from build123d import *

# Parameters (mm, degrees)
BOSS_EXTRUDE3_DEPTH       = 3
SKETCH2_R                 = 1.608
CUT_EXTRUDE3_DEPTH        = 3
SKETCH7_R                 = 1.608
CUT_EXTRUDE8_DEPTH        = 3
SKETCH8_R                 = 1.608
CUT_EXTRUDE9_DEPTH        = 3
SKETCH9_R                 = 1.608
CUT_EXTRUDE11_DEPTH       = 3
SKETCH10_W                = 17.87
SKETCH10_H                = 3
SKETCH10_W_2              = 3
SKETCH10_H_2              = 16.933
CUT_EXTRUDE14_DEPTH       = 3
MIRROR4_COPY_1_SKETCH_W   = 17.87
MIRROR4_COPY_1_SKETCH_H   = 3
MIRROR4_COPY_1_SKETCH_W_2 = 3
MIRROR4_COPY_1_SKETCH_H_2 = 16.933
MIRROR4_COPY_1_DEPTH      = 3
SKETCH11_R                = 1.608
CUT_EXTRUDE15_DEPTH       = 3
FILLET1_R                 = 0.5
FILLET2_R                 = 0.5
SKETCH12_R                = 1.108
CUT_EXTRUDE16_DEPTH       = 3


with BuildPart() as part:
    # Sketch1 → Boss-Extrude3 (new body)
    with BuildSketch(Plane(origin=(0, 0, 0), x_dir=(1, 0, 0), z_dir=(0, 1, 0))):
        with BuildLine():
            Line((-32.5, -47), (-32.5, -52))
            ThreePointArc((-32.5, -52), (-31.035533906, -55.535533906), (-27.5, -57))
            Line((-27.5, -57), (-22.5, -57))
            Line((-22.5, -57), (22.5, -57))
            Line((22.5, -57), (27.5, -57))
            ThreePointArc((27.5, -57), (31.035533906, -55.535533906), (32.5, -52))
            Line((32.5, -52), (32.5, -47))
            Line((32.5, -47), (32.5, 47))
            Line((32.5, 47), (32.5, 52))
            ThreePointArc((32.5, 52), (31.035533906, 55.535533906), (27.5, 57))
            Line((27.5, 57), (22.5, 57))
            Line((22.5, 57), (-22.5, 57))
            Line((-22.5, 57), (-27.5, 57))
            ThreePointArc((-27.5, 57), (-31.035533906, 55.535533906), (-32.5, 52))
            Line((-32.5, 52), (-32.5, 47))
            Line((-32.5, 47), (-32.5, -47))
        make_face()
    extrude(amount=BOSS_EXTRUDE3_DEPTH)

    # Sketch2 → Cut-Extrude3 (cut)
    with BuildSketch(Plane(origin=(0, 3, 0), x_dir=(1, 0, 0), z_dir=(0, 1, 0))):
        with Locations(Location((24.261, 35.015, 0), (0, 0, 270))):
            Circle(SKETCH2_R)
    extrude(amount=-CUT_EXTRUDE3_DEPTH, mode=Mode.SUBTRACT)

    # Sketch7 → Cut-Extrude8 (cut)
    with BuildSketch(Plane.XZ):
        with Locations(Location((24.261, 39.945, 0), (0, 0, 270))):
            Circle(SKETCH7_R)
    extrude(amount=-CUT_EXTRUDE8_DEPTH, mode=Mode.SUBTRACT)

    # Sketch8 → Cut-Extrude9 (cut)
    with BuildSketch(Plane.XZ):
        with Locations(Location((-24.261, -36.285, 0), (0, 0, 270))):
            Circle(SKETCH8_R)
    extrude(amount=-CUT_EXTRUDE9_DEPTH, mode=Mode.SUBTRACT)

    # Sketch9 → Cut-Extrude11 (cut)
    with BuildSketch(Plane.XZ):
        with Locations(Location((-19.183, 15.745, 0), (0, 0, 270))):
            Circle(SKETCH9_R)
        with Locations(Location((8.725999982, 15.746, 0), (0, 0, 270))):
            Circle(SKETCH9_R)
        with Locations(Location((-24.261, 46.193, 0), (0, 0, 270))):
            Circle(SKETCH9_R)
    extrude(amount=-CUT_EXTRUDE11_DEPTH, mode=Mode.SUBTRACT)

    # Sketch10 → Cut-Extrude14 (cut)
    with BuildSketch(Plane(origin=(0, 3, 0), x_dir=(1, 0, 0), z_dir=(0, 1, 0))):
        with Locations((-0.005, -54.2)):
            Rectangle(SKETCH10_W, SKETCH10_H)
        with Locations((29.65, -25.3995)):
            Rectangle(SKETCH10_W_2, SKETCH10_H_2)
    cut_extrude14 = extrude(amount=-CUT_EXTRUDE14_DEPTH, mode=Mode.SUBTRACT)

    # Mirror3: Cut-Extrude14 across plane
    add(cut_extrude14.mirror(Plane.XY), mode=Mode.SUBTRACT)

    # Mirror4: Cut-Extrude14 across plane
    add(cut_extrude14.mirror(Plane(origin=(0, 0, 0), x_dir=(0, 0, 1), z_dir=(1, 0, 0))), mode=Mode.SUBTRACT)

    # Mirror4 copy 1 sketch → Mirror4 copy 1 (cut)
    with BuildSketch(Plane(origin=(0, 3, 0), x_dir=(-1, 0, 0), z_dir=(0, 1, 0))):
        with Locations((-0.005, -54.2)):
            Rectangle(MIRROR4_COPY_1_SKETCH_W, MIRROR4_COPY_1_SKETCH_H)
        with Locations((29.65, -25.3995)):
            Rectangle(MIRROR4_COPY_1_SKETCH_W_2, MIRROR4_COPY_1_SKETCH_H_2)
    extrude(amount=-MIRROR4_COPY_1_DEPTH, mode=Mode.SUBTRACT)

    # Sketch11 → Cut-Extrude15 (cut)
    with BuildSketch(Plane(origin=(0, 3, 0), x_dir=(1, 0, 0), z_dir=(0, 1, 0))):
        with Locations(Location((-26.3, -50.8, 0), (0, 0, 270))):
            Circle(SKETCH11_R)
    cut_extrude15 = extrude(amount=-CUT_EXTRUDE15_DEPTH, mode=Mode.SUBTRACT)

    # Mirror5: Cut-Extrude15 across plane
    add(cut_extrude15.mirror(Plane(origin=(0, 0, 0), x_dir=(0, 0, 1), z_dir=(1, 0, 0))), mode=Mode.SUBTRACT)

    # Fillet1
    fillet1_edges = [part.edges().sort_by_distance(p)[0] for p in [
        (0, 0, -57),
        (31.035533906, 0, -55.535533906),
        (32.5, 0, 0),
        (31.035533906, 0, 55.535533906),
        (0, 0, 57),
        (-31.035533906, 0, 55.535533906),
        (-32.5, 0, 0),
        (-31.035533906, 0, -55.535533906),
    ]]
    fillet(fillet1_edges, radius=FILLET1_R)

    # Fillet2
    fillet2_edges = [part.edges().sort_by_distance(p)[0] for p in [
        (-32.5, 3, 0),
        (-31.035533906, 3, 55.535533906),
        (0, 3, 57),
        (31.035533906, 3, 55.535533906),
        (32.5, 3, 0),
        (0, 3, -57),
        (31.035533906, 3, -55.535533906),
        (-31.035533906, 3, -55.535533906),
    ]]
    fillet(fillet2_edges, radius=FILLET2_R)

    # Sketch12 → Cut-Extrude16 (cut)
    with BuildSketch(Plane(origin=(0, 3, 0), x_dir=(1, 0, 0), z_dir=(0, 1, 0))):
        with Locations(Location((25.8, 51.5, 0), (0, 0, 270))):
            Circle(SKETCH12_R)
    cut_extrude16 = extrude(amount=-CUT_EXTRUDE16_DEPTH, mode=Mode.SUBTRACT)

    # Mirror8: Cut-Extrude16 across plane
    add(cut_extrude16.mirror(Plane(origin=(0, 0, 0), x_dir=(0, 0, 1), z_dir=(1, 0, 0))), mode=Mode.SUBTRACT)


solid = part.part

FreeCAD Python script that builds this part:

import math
import FreeCAD as App
import Part
import Sketcher

V = App.Vector
Q = App.Units.Quantity


def edges_at(feature, points):
    """Names of the edges that pass closest to the given points."""
    edges = feature.Shape.Edges
    near = lambda p: min(range(len(edges)), key=lambda i: edges[i].distToShape(Part.Vertex(*p))[0])
    return sorted({f"Edge{near(p) + 1}" for p in points})

doc = App.newDocument("Part")
body = doc.addObject("PartDesign::Body", "Body")

# Sketch on XZ plane
sketch1 = doc.addObject("Sketcher::SketchObject", "Sketch")
body.addObject(sketch1)
sketch1.AttachmentSupport = (doc.XZ_Plane, [""])
sketch1.MapMode = "FlatFace"
sketch1.addGeometry(Part.ArcOfCircle(Part.Circle(V(-28, 52, 0), V(0, 0, 1), 5), math.radians(90), math.radians(180)), False)
sketch1.addGeometry(Part.LineSegment(V(-28, 57, 0), V(28, 57, 0)), False)
sketch1.addGeometry(Part.ArcOfCircle(Part.Circle(V(28, 52, 0), V(0, 0, 1), 5), math.radians(0), math.radians(90)), False)
sketch1.addGeometry(Part.LineSegment(V(32, 52, 0), V(32, -52, 0)), False)
sketch1.addGeometry(Part.ArcOfCircle(Part.Circle(V(28, -52, 0), V(0, 0, 1), 5), math.radians(-90), math.radians(0)), False)
sketch1.addGeometry(Part.LineSegment(V(28, -57, 0), V(-28, -57, 0)), False)
sketch1.addGeometry(Part.ArcOfCircle(Part.Circle(V(-28, -52, 0), V(0, 0, 1), 5), math.radians(180), math.radians(270)), False)
sketch1.addGeometry(Part.LineSegment(V(-32, -52, 0), V(-32, 52, 0)), False)
sketch1.addConstraint(Sketcher.Constraint("Tangent", 0, 1, 1, 1))
sketch1.addConstraint(Sketcher.Constraint("Tangent", 1, 2, 2, 2))
sketch1.addConstraint(Sketcher.Constraint("Tangent", 2, 1, 3, 1))
sketch1.addConstraint(Sketcher.Constraint("Tangent", 3, 2, 4, 2))
sketch1.addConstraint(Sketcher.Constraint("Tangent", 4, 1, 5, 1))
sketch1.addConstraint(Sketcher.Constraint("Tangent", 5, 2, 6, 2))
sketch1.addConstraint(Sketcher.Constraint("Tangent", 6, 1, 7, 1))
sketch1.addConstraint(Sketcher.Constraint("Tangent", 7, 2, 0, 2))
sketch1.addConstraint(Sketcher.Constraint("Horizontal", 1))
sketch1.addConstraint(Sketcher.Constraint("Vertical", 3))
sketch1.addConstraint(Sketcher.Constraint("Horizontal", 5))
sketch1.addConstraint(Sketcher.Constraint("Vertical", 7))
sketch1.addConstraint(Sketcher.Constraint("Equal", 0, 2))
sketch1.addConstraint(Sketcher.Constraint("Equal", 2, 4))
sketch1.addConstraint(Sketcher.Constraint("Equal", 4, 6))
sketch1.addConstraint(Sketcher.Constraint("Symmetric", 0, 3, 4, 3, -1, 1))
sketch1.addConstraint(Sketcher.Constraint("Radius", 0, Q("5 mm")))
sketch1.addConstraint(Sketcher.Constraint("DistanceX", 1, 1, 1, 2, Q("55 mm")))
sketch1.addConstraint(Sketcher.Constraint("DistanceY", 3, 2, 3, 1, Q("104 mm")))
pad1 = doc.addObject("PartDesign::Pad", "Pad")
body.addObject(pad1)
pad1.Profile = sketch1
pad1.Length = 3
pad1.Reversed = True

# Sketch on XZ plane
sketch2 = doc.addObject("Sketcher::SketchObject", "Sketch001")
body.addObject(sketch2)
sketch2.AttachmentSupport = (doc.XZ_Plane, [""])
sketch2.MapMode = "FlatFace"
sketch2.AttachmentOffset = App.Placement(V(0, 0, -3), App.Rotation())
sketch2.addGeometry(Part.Circle(V(24.3, -35, 0), V(0, 0, 1), 1.6), False)
sketch2.addConstraint(Sketcher.Constraint("Diameter", 0, Q("3.216 mm")))
sketch2.addConstraint(Sketcher.Constraint("DistanceX", -1, 1, 0, 3, Q("24.261 mm")))
sketch2.addConstraint(Sketcher.Constraint("DistanceY", 0, 3, -1, 1, Q("35.015 mm")))
pocket1 = doc.addObject("PartDesign::Pocket", "Pocket")
body.addObject(pocket1)
pocket1.Profile = sketch2
pocket1.Length = 3
pocket1.Reversed = True

# Sketch on XZ plane
sketch3 = doc.addObject("Sketcher::SketchObject", "Sketch002")
body.addObject(sketch3)
sketch3.AttachmentSupport = (doc.XZ_Plane, [""])
sketch3.MapMode = "FlatFace"
sketch3.addGeometry(Part.Circle(V(24.3, 39.9, 0), V(0, 0, 1), 1.6), False)
sketch3.addConstraint(Sketcher.Constraint("Diameter", 0, Q("3.216 mm")))
sketch3.addConstraint(Sketcher.Constraint("DistanceX", -1, 1, 0, 3, Q("24.261 mm")))
sketch3.addConstraint(Sketcher.Constraint("DistanceY", -1, 1, 0, 3, Q("39.945 mm")))
pocket2 = doc.addObject("PartDesign::Pocket", "Pocket001")
body.addObject(pocket2)
pocket2.Profile = sketch3
pocket2.Length = 3

# Sketch on XZ plane
sketch4 = doc.addObject("Sketcher::SketchObject", "Sketch003")
body.addObject(sketch4)
sketch4.AttachmentSupport = (doc.XZ_Plane, [""])
sketch4.MapMode = "FlatFace"
sketch4.addGeometry(Part.Circle(V(-24.3, -36.3, 0), V(0, 0, 1), 1.6), False)
sketch4.addConstraint(Sketcher.Constraint("Diameter", 0, Q("3.216 mm")))
sketch4.addConstraint(Sketcher.Constraint("DistanceX", 0, 3, -1, 1, Q("24.261 mm")))
sketch4.addConstraint(Sketcher.Constraint("DistanceY", 0, 3, -1, 1, Q("36.285 mm")))
pocket3 = doc.addObject("PartDesign::Pocket", "Pocket002")
body.addObject(pocket3)
pocket3.Profile = sketch4
pocket3.Length = 3

# Sketch on XZ plane
sketch5 = doc.addObject("Sketcher::SketchObject", "Sketch004")
body.addObject(sketch5)
sketch5.AttachmentSupport = (doc.XZ_Plane, [""])
sketch5.MapMode = "FlatFace"
sketch5.addGeometry(Part.Circle(V(-19.2, 15.7, 0), V(0, 0, 1), 1.6), False)
sketch5.addGeometry(Part.Circle(V(8.7, 15.7, 0), V(0, 0, 1), 1.6), False)
sketch5.addGeometry(Part.Circle(V(-24.3, 46.2, 0), V(0, 0, 1), 1.6), False)
sketch5.addConstraint(Sketcher.Constraint("Equal", 0, 1))
sketch5.addConstraint(Sketcher.Constraint("Equal", 1, 2))
sketch5.addConstraint(Sketcher.Constraint("Diameter", 0, Q("3.216 mm")))
sketch5.addConstraint(Sketcher.Constraint("DistanceX", 0, 3, -1, 1, Q("19.183 mm")))
sketch5.addConstraint(Sketcher.Constraint("DistanceY", -1, 1, 0, 3, Q("15.745 mm")))
sketch5.addConstraint(Sketcher.Constraint("DistanceX", -1, 1, 1, 3, Q("8.726 mm")))
sketch5.addConstraint(Sketcher.Constraint("DistanceY", -1, 1, 1, 3, Q("15.746 mm")))
sketch5.addConstraint(Sketcher.Constraint("DistanceX", 2, 3, -1, 1, Q("24.261 mm")))
sketch5.addConstraint(Sketcher.Constraint("DistanceY", -1, 1, 2, 3, Q("46.193 mm")))
pocket4 = doc.addObject("PartDesign::Pocket", "Pocket003")
body.addObject(pocket4)
pocket4.Profile = sketch5
pocket4.Length = 3

# Sketch on XZ plane
sketch6 = doc.addObject("Sketcher::SketchObject", "Sketch005")
body.addObject(sketch6)
sketch6.AttachmentSupport = (doc.XZ_Plane, [""])
sketch6.MapMode = "FlatFace"
sketch6.AttachmentOffset = App.Placement(V(0, 0, -3), App.Rotation())
sketch6.addGeometry(Part.LineSegment(V(-8.9, 52.7, 0), V(-8.9, 55.7, 0)), False)
sketch6.addGeometry(Part.LineSegment(V(-8.9, 55.7, 0), V(8.9, 55.7, 0)), False)
sketch6.addGeometry(Part.LineSegment(V(8.9, 55.7, 0), V(8.9, 52.7, 0)), False)
sketch6.addGeometry(Part.LineSegment(V(8.9, 52.7, 0), V(-8.9, 52.7, 0)), False)
sketch6.addGeometry(Part.LineSegment(V(28.1, 16.9, 0), V(28.1, 33.9, 0)), False)
sketch6.addGeometry(Part.LineSegment(V(28.1, 33.9, 0), V(31.1, 33.9, 0)), False)
sketch6.addGeometry(Part.LineSegment(V(31.1, 33.9, 0), V(31.1, 16.9, 0)), False)
sketch6.addGeometry(Part.LineSegment(V(31.1, 16.9, 0), V(28.1, 16.9, 0)), False)
sketch6.addConstraint(Sketcher.Constraint("Coincident", 0, 2, 1, 1))
sketch6.addConstraint(Sketcher.Constraint("Coincident", 1, 2, 2, 1))
sketch6.addConstraint(Sketcher.Constraint("Coincident", 2, 2, 3, 1))
sketch6.addConstraint(Sketcher.Constraint("Coincident", 3, 2, 0, 1))
sketch6.addConstraint(Sketcher.Constraint("Coincident", 4, 2, 5, 1))
sketch6.addConstraint(Sketcher.Constraint("Coincident", 5, 2, 6, 1))
sketch6.addConstraint(Sketcher.Constraint("Coincident", 6, 2, 7, 1))
sketch6.addConstraint(Sketcher.Constraint("Coincident", 7, 2, 4, 1))
sketch6.addConstraint(Sketcher.Constraint("Vertical", 0))
sketch6.addConstraint(Sketcher.Constraint("Horizontal", 1))
sketch6.addConstraint(Sketcher.Constraint("Vertical", 2))
sketch6.addConstraint(Sketcher.Constraint("Horizontal", 3))
sketch6.addConstraint(Sketcher.Constraint("Vertical", 4))
sketch6.addConstraint(Sketcher.Constraint("Horizontal", 5))
sketch6.addConstraint(Sketcher.Constraint("Vertical", 6))
sketch6.addConstraint(Sketcher.Constraint("Horizontal", 7))
sketch6.addConstraint(Sketcher.Constraint("Equal", 7, 0))
sketch6.addConstraint(Sketcher.Constraint("DistanceX", 5, 1, 5, 2, Q("3 mm")))
sketch6.addConstraint(Sketcher.Constraint("DistanceX", 1, 1, 1, 2, Q("17.87 mm")))
sketch6.addConstraint(Sketcher.Constraint("DistanceY", -1, 1, 0, 2, Q("55.7 mm")))
sketch6.addConstraint(Sketcher.Constraint("DistanceY", 4, 1, 4, 2, Q("16.933 mm")))
sketch6.addConstraint(Sketcher.Constraint("DistanceX", 0, 2, -1, 1, Q("8.94 mm")))
sketch6.addConstraint(Sketcher.Constraint("DistanceX", -1, 1, 4, 2, Q("28.15 mm")))
sketch6.addConstraint(Sketcher.Constraint("DistanceY", -1, 1, 4, 2, Q("33.866 mm")))
pocket5 = doc.addObject("PartDesign::Pocket", "Pocket004")
body.addObject(pocket5)
pocket5.Profile = sketch6
pocket5.Length = 3
pocket5.Reversed = True
doc.recompute()

mirrored = doc.addObject("PartDesign::Mirrored", "Mirrored")
body.addObject(mirrored)
mirrored.Originals = [pocket5]
mirrored.MirrorPlane = (doc.XY_Plane, [""])
body.Tip = mirrored
doc.recompute()

mirrored2 = doc.addObject("PartDesign::Mirrored", "Mirrored001")
body.addObject(mirrored2)
mirrored2.Originals = [pocket5]
mirrored2.MirrorPlane = (doc.YZ_Plane, [""])
body.Tip = mirrored2

# Sketch on XZ plane
sketch7 = doc.addObject("Sketcher::SketchObject", "Sketch006")
body.addObject(sketch7)
sketch7.AttachmentSupport = (doc.XZ_Plane, [""])
sketch7.MapMode = "FlatFace"
sketch7.AttachmentOffset = App.Placement(V(0, 0, -3), App.Rotation())
sketch7.addGeometry(Part.LineSegment(V(8.9, -52.7, 0), V(8.9, -55.7, 0)), False)
sketch7.addGeometry(Part.LineSegment(V(8.9, -55.7, 0), V(-8.9, -55.7, 0)), False)
sketch7.addGeometry(Part.LineSegment(V(-8.9, -55.7, 0), V(-8.9, -52.7, 0)), False)
sketch7.addGeometry(Part.LineSegment(V(-8.9, -52.7, 0), V(8.9, -52.7, 0)), False)
sketch7.addGeometry(Part.LineSegment(V(-28.1, -16.9, 0), V(-28.1, -33.9, 0)), False)
sketch7.addGeometry(Part.LineSegment(V(-28.1, -33.9, 0), V(-31.1, -33.9, 0)), False)
sketch7.addGeometry(Part.LineSegment(V(-31.1, -33.9, 0), V(-31.1, -16.9, 0)), False)
sketch7.addGeometry(Part.LineSegment(V(-31.1, -16.9, 0), V(-28.1, -16.9, 0)), False)
sketch7.addConstraint(Sketcher.Constraint("Coincident", 0, 2, 1, 1))
sketch7.addConstraint(Sketcher.Constraint("Coincident", 1, 2, 2, 1))
sketch7.addConstraint(Sketcher.Constraint("Coincident", 2, 2, 3, 1))
sketch7.addConstraint(Sketcher.Constraint("Coincident", 3, 2, 0, 1))
sketch7.addConstraint(Sketcher.Constraint("Coincident", 4, 2, 5, 1))
sketch7.addConstraint(Sketcher.Constraint("Coincident", 5, 2, 6, 1))
sketch7.addConstraint(Sketcher.Constraint("Coincident", 6, 2, 7, 1))
sketch7.addConstraint(Sketcher.Constraint("Coincident", 7, 2, 4, 1))
sketch7.addConstraint(Sketcher.Constraint("Vertical", 0))
sketch7.addConstraint(Sketcher.Constraint("Horizontal", 1))
sketch7.addConstraint(Sketcher.Constraint("Vertical", 2))
sketch7.addConstraint(Sketcher.Constraint("Horizontal", 3))
sketch7.addConstraint(Sketcher.Constraint("Vertical", 4))
sketch7.addConstraint(Sketcher.Constraint("Horizontal", 5))
sketch7.addConstraint(Sketcher.Constraint("Vertical", 6))
sketch7.addConstraint(Sketcher.Constraint("Horizontal", 7))
sketch7.addConstraint(Sketcher.Constraint("Equal", 7, 0))
sketch7.addConstraint(Sketcher.Constraint("DistanceX", 5, 2, 5, 1, Q("3 mm")))
sketch7.addConstraint(Sketcher.Constraint("DistanceX", 1, 2, 1, 1, Q("17.87 mm")))
sketch7.addConstraint(Sketcher.Constraint("DistanceY", 0, 2, -1, 1, Q("55.7 mm")))
sketch7.addConstraint(Sketcher.Constraint("DistanceY", 4, 2, 4, 1, Q("16.933 mm")))
sketch7.addConstraint(Sketcher.Constraint("DistanceX", -1, 1, 0, 2, Q("8.94 mm")))
sketch7.addConstraint(Sketcher.Constraint("DistanceX", 4, 2, -1, 1, Q("28.15 mm")))
sketch7.addConstraint(Sketcher.Constraint("DistanceY", 4, 2, -1, 1, Q("33.866 mm")))
pocket6 = doc.addObject("PartDesign::Pocket", "Pocket005")
body.addObject(pocket6)
pocket6.Profile = sketch7
pocket6.Length = 3
pocket6.Reversed = True

# Sketch on XZ plane
sketch8 = doc.addObject("Sketcher::SketchObject", "Sketch007")
body.addObject(sketch8)
sketch8.AttachmentSupport = (doc.XZ_Plane, [""])
sketch8.MapMode = "FlatFace"
sketch8.AttachmentOffset = App.Placement(V(0, 0, -3), App.Rotation())
sketch8.addGeometry(Part.Circle(V(-26.3, 50.8, 0), V(0, 0, 1), 1.6), False)
sketch8.addConstraint(Sketcher.Constraint("Diameter", 0, Q("3.216 mm")))
sketch8.addConstraint(Sketcher.Constraint("DistanceX", 0, 3, -1, 1, Q("26.3 mm")))
sketch8.addConstraint(Sketcher.Constraint("DistanceY", -1, 1, 0, 3, Q("50.8 mm")))
pocket7 = doc.addObject("PartDesign::Pocket", "Pocket006")
body.addObject(pocket7)
pocket7.Profile = sketch8
pocket7.Length = 3
pocket7.Reversed = True
doc.recompute()

mirrored3 = doc.addObject("PartDesign::Mirrored", "Mirrored002")
body.addObject(mirrored3)
mirrored3.Originals = [pocket7]
mirrored3.MirrorPlane = (doc.YZ_Plane, [""])
body.Tip = mirrored3
doc.recompute()

fillet = doc.addObject("PartDesign::Fillet", "Fillet")
body.addObject(fillet)
fillet.Base = (mirrored3, edges_at(mirrored3, [
    (0, 0, -57),
    (31.036, 0, -55.536),
    (32.5, 0, 0),
    (31.036, 0, 55.536),
    (0, 0, 57),
    (-31.036, 0, 55.536),
    (-32.5, 0, 0),
    (-31.036, 0, -55.536),
]))
fillet.Radius = 0.5
doc.recompute()

fillet2 = doc.addObject("PartDesign::Fillet", "Fillet001")
body.addObject(fillet2)
fillet2.Base = (fillet, edges_at(fillet, [
    (-32.5, 3, 0),
    (-31.036, 3, 55.536),
    (0, 3, 57),
    (31.036, 3, 55.536),
    (32.5, 3, 0),
    (0, 3, -57),
    (31.036, 3, -55.536),
    (-31.036, 3, -55.536),
]))
fillet2.Radius = 0.5

# Sketch on XZ plane
sketch9 = doc.addObject("Sketcher::SketchObject", "Sketch008")
body.addObject(sketch9)
sketch9.AttachmentSupport = (doc.XZ_Plane, [""])
sketch9.MapMode = "FlatFace"
sketch9.AttachmentOffset = App.Placement(V(0, 0, -3), App.Rotation())
sketch9.addGeometry(Part.Circle(V(25.8, -51.5, 0), V(0, 0, 1), 1.1), False)
sketch9.addConstraint(Sketcher.Constraint("Diameter", 0, Q("2.216 mm")))
sketch9.addConstraint(Sketcher.Constraint("DistanceX", -1, 1, 0, 3, Q("25.8 mm")))
sketch9.addConstraint(Sketcher.Constraint("DistanceY", 0, 3, -1, 1, Q("51.5 mm")))
pocket8 = doc.addObject("PartDesign::Pocket", "Pocket007")
body.addObject(pocket8)
pocket8.Profile = sketch9
pocket8.Length = 3
pocket8.Reversed = True
doc.recompute()

mirrored4 = doc.addObject("PartDesign::Mirrored", "Mirrored003")
body.addObject(mirrored4)
mirrored4.Originals = [pocket8]
mirrored4.MirrorPlane = (doc.YZ_Plane, [""])
body.Tip = mirrored4

doc.recompute()
